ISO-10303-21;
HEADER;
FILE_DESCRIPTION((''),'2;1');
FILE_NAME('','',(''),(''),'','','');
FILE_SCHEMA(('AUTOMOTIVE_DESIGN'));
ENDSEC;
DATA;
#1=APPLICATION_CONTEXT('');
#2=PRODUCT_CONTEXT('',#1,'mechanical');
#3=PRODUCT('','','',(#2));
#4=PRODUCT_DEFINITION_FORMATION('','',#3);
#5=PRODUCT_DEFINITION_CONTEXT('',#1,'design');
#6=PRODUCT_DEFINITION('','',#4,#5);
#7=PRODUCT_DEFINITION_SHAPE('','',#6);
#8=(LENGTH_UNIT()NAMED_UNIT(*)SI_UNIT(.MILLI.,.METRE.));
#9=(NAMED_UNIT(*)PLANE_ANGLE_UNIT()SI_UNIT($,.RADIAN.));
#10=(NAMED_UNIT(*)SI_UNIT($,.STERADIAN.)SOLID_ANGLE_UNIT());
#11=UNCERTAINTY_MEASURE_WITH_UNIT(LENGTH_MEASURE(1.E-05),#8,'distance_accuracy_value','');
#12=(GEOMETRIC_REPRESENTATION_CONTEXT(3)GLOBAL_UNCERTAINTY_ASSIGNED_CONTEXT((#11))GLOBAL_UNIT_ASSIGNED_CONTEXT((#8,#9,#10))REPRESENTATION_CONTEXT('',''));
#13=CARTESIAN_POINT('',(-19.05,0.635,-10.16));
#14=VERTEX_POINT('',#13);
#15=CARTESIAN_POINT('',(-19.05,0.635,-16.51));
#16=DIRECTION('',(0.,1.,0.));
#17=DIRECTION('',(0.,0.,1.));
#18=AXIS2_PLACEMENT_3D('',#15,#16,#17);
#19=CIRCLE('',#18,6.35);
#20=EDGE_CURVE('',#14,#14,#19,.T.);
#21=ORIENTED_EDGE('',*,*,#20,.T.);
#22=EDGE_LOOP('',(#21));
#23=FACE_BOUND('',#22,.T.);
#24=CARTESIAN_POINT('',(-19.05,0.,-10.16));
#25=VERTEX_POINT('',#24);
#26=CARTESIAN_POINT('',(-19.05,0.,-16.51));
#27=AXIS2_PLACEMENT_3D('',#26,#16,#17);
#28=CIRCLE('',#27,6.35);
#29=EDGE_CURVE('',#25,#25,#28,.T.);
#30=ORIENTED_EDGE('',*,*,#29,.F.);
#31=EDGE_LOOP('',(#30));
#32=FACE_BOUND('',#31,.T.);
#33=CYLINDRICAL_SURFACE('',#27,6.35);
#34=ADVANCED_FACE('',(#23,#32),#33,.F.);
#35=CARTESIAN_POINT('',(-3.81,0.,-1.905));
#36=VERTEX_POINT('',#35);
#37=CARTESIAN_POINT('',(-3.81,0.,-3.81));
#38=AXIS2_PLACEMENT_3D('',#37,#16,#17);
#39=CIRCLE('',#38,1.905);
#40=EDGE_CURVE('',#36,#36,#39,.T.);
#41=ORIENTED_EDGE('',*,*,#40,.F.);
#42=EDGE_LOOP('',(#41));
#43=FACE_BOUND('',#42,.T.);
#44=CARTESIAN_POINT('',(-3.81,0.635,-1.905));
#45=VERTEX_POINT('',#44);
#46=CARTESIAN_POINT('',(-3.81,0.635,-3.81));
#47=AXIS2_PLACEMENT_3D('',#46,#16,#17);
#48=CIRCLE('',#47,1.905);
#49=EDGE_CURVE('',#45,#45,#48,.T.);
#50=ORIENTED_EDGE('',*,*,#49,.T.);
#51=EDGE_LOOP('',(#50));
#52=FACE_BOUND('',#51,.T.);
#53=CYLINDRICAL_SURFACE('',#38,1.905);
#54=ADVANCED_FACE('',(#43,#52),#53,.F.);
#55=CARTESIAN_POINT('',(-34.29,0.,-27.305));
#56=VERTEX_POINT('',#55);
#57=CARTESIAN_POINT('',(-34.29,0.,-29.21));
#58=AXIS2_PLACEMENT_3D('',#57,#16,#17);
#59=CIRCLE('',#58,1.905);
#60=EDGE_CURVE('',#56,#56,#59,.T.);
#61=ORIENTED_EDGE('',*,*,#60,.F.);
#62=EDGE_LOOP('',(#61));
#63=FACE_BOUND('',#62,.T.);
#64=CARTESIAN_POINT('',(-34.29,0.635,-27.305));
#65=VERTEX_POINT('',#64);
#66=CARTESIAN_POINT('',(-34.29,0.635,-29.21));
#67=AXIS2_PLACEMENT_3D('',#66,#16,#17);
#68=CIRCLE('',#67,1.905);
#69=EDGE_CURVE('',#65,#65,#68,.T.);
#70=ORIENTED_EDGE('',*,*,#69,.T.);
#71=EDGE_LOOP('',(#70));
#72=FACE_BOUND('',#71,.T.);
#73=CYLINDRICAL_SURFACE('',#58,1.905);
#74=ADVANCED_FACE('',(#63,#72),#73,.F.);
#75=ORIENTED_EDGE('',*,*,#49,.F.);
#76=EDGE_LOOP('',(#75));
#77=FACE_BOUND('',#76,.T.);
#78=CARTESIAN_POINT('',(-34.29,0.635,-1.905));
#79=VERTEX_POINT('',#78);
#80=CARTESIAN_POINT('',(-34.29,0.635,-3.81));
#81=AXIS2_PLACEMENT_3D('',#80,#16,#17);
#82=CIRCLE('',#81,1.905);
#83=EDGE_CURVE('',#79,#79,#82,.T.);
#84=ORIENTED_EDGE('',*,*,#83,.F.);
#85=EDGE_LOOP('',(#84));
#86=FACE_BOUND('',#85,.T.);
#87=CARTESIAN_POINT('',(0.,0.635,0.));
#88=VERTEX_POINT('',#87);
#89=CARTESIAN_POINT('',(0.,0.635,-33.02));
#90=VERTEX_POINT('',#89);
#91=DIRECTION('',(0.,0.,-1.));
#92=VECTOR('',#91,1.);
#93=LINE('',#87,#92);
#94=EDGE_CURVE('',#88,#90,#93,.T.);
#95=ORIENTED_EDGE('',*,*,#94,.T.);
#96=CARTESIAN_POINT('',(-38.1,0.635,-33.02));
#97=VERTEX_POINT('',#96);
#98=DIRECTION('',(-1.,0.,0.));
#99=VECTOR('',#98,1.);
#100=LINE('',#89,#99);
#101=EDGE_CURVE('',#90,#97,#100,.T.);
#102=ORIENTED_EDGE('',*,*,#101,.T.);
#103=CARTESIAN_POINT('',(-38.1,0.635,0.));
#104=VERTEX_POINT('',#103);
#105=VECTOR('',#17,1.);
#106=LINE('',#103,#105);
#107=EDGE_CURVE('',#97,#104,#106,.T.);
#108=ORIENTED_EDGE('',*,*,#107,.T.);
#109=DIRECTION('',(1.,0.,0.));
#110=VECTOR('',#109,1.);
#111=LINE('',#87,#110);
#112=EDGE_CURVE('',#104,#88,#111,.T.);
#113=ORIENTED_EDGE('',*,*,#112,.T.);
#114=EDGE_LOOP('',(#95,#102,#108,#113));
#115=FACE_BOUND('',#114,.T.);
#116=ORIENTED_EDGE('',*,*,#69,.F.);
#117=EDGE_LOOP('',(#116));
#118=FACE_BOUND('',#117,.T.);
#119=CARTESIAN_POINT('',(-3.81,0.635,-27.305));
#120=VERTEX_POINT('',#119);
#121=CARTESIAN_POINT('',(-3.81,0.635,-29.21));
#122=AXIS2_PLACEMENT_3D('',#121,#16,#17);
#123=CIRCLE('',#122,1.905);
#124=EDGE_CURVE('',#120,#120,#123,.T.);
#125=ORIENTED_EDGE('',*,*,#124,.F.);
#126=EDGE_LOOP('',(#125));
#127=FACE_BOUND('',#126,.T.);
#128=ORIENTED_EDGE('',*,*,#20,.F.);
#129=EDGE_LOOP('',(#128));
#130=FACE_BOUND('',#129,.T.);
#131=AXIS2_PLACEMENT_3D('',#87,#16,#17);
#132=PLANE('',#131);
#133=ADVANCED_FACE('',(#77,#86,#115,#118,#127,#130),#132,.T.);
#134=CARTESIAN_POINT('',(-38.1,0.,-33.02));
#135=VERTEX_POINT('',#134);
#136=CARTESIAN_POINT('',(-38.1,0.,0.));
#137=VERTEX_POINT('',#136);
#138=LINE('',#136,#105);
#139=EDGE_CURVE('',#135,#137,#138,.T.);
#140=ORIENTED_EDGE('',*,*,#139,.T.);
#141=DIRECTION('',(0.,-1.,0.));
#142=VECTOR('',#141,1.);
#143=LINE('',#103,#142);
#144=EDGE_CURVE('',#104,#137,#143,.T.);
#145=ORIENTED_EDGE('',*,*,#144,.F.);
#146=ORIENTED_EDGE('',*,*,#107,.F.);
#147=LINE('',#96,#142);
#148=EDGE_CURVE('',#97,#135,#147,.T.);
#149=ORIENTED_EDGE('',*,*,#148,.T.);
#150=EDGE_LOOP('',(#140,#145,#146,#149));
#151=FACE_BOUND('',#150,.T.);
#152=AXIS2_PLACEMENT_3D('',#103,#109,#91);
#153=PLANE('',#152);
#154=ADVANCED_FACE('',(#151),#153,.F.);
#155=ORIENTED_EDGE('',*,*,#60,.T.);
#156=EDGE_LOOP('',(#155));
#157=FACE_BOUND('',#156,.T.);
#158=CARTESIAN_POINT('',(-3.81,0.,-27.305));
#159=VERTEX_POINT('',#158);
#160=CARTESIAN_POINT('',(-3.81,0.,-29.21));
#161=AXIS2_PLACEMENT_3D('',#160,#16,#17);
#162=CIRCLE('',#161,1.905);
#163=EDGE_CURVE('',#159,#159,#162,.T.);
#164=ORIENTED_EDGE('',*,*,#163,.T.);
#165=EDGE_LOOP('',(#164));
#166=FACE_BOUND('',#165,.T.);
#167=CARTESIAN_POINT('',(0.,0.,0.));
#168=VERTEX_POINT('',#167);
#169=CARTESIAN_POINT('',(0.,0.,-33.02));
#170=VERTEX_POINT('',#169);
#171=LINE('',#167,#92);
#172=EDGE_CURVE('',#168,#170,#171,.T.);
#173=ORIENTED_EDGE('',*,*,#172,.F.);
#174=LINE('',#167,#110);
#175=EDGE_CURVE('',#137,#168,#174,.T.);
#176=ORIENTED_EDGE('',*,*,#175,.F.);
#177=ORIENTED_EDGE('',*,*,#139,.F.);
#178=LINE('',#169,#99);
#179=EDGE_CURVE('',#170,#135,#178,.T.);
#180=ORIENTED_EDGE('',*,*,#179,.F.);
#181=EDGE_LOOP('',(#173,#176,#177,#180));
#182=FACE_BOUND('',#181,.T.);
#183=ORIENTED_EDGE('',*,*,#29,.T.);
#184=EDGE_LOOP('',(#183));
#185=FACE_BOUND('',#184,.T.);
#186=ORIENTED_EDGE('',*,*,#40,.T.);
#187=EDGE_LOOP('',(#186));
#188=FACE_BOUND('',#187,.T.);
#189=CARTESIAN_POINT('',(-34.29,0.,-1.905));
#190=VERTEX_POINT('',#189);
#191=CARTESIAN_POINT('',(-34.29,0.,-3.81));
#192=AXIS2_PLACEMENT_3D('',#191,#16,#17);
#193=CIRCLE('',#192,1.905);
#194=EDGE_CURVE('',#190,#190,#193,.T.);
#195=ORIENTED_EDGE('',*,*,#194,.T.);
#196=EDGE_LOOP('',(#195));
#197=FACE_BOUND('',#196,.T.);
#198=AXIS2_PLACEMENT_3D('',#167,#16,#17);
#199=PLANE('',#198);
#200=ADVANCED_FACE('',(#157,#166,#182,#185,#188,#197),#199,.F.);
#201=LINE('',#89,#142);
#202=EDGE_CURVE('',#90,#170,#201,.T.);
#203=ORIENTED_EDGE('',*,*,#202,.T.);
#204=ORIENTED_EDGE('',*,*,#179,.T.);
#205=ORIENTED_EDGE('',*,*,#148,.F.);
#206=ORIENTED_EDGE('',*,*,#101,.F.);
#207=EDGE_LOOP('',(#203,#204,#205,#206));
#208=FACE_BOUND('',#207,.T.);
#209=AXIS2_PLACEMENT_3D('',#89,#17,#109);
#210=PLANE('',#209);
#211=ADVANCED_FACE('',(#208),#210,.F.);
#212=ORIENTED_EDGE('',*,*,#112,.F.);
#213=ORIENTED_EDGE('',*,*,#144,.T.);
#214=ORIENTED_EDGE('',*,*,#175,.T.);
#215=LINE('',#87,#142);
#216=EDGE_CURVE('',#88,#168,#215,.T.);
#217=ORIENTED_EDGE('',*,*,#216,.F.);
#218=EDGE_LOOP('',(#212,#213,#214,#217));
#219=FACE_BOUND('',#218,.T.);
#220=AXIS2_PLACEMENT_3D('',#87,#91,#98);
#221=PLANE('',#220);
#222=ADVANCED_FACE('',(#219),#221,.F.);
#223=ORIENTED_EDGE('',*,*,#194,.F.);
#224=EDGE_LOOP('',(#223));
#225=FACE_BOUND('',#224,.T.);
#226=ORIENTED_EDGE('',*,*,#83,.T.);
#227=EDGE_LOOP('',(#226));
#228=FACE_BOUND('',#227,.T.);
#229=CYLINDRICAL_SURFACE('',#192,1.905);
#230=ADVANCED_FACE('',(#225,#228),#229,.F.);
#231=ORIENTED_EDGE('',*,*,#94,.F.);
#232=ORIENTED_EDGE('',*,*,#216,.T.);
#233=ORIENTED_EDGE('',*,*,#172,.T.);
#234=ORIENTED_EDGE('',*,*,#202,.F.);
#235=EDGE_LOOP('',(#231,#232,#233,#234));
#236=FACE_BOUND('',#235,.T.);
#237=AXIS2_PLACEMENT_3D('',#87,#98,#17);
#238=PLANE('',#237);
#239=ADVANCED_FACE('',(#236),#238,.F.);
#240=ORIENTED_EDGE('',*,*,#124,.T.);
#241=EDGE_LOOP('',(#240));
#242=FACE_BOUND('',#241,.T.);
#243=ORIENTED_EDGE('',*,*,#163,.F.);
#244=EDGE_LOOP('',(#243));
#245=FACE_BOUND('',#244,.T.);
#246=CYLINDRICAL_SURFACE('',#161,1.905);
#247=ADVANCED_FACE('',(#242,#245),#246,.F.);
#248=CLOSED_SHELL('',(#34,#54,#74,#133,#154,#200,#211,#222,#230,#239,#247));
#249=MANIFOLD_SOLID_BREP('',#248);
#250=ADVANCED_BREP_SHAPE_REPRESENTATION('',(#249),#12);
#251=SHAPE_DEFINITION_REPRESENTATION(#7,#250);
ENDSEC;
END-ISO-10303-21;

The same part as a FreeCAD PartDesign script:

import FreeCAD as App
import Part
import Sketcher

V = App.Vector
Q = App.Units.Quantity

doc = App.newDocument("Part")
params = doc.addObject("Spreadsheet::Sheet", "Params")
for row, (alias, value) in enumerate([
    ("sketch1_width", "1.5 in"),
    ("sketch1_height", "1.3 in"),
    ("pad1_length", "0.025 in"),
    ("sketch2_diameter", "0.15 in"),
    ("pocket1_length", "0.025 in"),
    ("sketch3_diameter", "0.5 in"),
    ("pocket2_length", "0.025 in"),
], start=1):
    params.set(f"A{row}", alias)
    params.set(f"B{row}", "=" + value)
    params.setAlias(f"B{row}", alias)

body = doc.addObject("PartDesign::Body", "Body")

sketch1 = body.newObject("Sketcher::SketchObject", "Sketch")
sketch1.AttachmentSupport = (doc.getObject("XZ_Plane"), [""])
sketch1.MapMode = "FlatFace"
sketch1.addGeometry([
    Part.LineSegment(V(-38.1, -33.02, 0), V(-38.1, 0, 0)),
    Part.LineSegment(V(-38.1, 0, 0), V(0, 0, 0)),
    Part.LineSegment(V(0, 0, 0), V(0, -33.02, 0)),
    Part.LineSegment(V(0, -33.02, 0), V(-38.1, -33.02, 0)),
], False)
sketch1.addConstraint([
    Sketcher.Constraint("Coincident", 0, 2, 1, 1),
    Sketcher.Constraint("Coincident", 1, 2, 2, 1),
    Sketcher.Constraint("Coincident", 2, 2, 3, 1),
    Sketcher.Constraint("Coincident", 3, 2, 0, 1),
    Sketcher.Constraint("Vertical", 0),
    Sketcher.Constraint("Horizontal", 1),
    Sketcher.Constraint("Vertical", 2),
    Sketcher.Constraint("Horizontal", 3),
    Sketcher.Constraint("Coincident", 1, 2, -1, 1),
    Sketcher.Constraint("DistanceX", 1, 1, 1, 2, Q("1.5 in")),
    Sketcher.Constraint("DistanceY", 0, 1, 0, 2, Q("1.3 in")),
])
sketch1.setExpression("Constraints[9]", "Params.sketch1_width")
sketch1.setExpression("Constraints[10]", "Params.sketch1_height")
pad1 = body.newObject("PartDesign::Pad", "Pad")
pad1.Profile = sketch1
pad1.setExpression("Length", "Params.pad1_length")
pad1.Reversed = True

sketch2 = body.newObject("Sketcher::SketchObject", "Sketch001")
sketch2.AttachmentSupport = (doc.getObject("XZ_Plane"), [""])
sketch2.MapMode = "FlatFace"
sketch2.AttachmentOffset = App.Placement(V(0, 0, -0.025 * 25.4), App.Rotation())
sketch2.addGeometry([
    Part.Circle(V(-34.29, -29.21, 0), V(0, 0, 1), 1.905),
    Part.Circle(V(-34.29, -3.81, 0), V(0, 0, 1), 1.905),
    Part.Circle(V(-3.81, -29.21, 0), V(0, 0, 1), 1.905),
    Part.Circle(V(-3.81, -3.81, 0), V(0, 0, 1), 1.905),
], False)
sketch2.addConstraint([
    Sketcher.Constraint("Equal", 0, 1),
    Sketcher.Constraint("Equal", 1, 2),
    Sketcher.Constraint("Equal", 2, 3),
    Sketcher.Constraint("Horizontal", 0, 3, 2, 3),
    Sketcher.Constraint("Horizontal", 1, 3, 3, 3),
    Sketcher.Constraint("Vertical", 0, 3, 1, 3),
    Sketcher.Constraint("Vertical", 2, 3, 3, 3),
    Sketcher.Constraint("Diameter", 0, Q("0.15 in")),
    Sketcher.Constraint("DistanceY", 0, 3, 1, 3, Q("1 in")),
    Sketcher.Constraint("DistanceX", 0, 3, 2, 3, Q("1.2 in")),
    Sketcher.Constraint("DistanceX", 0, 3, -1, 1, Q("1.35 in")),
    Sketcher.Constraint("DistanceY", 0, 3, -1, 1, Q("1.15 in")),
])
sketch2.setExpression("Constraints[7]", "Params.sketch2_diameter")
pocket1 = body.newObject("PartDesign::Pocket", "Pocket")
pocket1.Profile = sketch2
pocket1.setExpression("Length", "Params.pocket1_length")
pocket1.Reversed = True

sketch3 = body.newObject("Sketcher::SketchObject", "Sketch002")
sketch3.AttachmentSupport = (doc.getObject("XZ_Plane"), [""])
sketch3.MapMode = "FlatFace"
sketch3.AttachmentOffset = App.Placement(V(0, 0, -0.025 * 25.4), App.Rotation())
sketch3.addGeometry(Part.Circle(V(-19.05, -16.51, 0), V(0, 0, 1), 6.35), False)
sketch3.addConstraint([
    Sketcher.Constraint("Diameter", 0, Q("0.5 in")),
    Sketcher.Constraint("DistanceX", 0, 3, -1, 1, Q("0.75 in")),
    Sketcher.Constraint("DistanceY", 0, 3, -1, 1, Q("0.65 in")),
])
sketch3.setExpression("Constraints[0]", "Params.sketch3_diameter")
pocket2 = body.newObject("PartDesign::Pocket", "Pocket001")
pocket2.Profile = sketch3
pocket2.setExpression("Length", "Params.pocket2_length")
pocket2.Reversed = True

doc.recompute()
